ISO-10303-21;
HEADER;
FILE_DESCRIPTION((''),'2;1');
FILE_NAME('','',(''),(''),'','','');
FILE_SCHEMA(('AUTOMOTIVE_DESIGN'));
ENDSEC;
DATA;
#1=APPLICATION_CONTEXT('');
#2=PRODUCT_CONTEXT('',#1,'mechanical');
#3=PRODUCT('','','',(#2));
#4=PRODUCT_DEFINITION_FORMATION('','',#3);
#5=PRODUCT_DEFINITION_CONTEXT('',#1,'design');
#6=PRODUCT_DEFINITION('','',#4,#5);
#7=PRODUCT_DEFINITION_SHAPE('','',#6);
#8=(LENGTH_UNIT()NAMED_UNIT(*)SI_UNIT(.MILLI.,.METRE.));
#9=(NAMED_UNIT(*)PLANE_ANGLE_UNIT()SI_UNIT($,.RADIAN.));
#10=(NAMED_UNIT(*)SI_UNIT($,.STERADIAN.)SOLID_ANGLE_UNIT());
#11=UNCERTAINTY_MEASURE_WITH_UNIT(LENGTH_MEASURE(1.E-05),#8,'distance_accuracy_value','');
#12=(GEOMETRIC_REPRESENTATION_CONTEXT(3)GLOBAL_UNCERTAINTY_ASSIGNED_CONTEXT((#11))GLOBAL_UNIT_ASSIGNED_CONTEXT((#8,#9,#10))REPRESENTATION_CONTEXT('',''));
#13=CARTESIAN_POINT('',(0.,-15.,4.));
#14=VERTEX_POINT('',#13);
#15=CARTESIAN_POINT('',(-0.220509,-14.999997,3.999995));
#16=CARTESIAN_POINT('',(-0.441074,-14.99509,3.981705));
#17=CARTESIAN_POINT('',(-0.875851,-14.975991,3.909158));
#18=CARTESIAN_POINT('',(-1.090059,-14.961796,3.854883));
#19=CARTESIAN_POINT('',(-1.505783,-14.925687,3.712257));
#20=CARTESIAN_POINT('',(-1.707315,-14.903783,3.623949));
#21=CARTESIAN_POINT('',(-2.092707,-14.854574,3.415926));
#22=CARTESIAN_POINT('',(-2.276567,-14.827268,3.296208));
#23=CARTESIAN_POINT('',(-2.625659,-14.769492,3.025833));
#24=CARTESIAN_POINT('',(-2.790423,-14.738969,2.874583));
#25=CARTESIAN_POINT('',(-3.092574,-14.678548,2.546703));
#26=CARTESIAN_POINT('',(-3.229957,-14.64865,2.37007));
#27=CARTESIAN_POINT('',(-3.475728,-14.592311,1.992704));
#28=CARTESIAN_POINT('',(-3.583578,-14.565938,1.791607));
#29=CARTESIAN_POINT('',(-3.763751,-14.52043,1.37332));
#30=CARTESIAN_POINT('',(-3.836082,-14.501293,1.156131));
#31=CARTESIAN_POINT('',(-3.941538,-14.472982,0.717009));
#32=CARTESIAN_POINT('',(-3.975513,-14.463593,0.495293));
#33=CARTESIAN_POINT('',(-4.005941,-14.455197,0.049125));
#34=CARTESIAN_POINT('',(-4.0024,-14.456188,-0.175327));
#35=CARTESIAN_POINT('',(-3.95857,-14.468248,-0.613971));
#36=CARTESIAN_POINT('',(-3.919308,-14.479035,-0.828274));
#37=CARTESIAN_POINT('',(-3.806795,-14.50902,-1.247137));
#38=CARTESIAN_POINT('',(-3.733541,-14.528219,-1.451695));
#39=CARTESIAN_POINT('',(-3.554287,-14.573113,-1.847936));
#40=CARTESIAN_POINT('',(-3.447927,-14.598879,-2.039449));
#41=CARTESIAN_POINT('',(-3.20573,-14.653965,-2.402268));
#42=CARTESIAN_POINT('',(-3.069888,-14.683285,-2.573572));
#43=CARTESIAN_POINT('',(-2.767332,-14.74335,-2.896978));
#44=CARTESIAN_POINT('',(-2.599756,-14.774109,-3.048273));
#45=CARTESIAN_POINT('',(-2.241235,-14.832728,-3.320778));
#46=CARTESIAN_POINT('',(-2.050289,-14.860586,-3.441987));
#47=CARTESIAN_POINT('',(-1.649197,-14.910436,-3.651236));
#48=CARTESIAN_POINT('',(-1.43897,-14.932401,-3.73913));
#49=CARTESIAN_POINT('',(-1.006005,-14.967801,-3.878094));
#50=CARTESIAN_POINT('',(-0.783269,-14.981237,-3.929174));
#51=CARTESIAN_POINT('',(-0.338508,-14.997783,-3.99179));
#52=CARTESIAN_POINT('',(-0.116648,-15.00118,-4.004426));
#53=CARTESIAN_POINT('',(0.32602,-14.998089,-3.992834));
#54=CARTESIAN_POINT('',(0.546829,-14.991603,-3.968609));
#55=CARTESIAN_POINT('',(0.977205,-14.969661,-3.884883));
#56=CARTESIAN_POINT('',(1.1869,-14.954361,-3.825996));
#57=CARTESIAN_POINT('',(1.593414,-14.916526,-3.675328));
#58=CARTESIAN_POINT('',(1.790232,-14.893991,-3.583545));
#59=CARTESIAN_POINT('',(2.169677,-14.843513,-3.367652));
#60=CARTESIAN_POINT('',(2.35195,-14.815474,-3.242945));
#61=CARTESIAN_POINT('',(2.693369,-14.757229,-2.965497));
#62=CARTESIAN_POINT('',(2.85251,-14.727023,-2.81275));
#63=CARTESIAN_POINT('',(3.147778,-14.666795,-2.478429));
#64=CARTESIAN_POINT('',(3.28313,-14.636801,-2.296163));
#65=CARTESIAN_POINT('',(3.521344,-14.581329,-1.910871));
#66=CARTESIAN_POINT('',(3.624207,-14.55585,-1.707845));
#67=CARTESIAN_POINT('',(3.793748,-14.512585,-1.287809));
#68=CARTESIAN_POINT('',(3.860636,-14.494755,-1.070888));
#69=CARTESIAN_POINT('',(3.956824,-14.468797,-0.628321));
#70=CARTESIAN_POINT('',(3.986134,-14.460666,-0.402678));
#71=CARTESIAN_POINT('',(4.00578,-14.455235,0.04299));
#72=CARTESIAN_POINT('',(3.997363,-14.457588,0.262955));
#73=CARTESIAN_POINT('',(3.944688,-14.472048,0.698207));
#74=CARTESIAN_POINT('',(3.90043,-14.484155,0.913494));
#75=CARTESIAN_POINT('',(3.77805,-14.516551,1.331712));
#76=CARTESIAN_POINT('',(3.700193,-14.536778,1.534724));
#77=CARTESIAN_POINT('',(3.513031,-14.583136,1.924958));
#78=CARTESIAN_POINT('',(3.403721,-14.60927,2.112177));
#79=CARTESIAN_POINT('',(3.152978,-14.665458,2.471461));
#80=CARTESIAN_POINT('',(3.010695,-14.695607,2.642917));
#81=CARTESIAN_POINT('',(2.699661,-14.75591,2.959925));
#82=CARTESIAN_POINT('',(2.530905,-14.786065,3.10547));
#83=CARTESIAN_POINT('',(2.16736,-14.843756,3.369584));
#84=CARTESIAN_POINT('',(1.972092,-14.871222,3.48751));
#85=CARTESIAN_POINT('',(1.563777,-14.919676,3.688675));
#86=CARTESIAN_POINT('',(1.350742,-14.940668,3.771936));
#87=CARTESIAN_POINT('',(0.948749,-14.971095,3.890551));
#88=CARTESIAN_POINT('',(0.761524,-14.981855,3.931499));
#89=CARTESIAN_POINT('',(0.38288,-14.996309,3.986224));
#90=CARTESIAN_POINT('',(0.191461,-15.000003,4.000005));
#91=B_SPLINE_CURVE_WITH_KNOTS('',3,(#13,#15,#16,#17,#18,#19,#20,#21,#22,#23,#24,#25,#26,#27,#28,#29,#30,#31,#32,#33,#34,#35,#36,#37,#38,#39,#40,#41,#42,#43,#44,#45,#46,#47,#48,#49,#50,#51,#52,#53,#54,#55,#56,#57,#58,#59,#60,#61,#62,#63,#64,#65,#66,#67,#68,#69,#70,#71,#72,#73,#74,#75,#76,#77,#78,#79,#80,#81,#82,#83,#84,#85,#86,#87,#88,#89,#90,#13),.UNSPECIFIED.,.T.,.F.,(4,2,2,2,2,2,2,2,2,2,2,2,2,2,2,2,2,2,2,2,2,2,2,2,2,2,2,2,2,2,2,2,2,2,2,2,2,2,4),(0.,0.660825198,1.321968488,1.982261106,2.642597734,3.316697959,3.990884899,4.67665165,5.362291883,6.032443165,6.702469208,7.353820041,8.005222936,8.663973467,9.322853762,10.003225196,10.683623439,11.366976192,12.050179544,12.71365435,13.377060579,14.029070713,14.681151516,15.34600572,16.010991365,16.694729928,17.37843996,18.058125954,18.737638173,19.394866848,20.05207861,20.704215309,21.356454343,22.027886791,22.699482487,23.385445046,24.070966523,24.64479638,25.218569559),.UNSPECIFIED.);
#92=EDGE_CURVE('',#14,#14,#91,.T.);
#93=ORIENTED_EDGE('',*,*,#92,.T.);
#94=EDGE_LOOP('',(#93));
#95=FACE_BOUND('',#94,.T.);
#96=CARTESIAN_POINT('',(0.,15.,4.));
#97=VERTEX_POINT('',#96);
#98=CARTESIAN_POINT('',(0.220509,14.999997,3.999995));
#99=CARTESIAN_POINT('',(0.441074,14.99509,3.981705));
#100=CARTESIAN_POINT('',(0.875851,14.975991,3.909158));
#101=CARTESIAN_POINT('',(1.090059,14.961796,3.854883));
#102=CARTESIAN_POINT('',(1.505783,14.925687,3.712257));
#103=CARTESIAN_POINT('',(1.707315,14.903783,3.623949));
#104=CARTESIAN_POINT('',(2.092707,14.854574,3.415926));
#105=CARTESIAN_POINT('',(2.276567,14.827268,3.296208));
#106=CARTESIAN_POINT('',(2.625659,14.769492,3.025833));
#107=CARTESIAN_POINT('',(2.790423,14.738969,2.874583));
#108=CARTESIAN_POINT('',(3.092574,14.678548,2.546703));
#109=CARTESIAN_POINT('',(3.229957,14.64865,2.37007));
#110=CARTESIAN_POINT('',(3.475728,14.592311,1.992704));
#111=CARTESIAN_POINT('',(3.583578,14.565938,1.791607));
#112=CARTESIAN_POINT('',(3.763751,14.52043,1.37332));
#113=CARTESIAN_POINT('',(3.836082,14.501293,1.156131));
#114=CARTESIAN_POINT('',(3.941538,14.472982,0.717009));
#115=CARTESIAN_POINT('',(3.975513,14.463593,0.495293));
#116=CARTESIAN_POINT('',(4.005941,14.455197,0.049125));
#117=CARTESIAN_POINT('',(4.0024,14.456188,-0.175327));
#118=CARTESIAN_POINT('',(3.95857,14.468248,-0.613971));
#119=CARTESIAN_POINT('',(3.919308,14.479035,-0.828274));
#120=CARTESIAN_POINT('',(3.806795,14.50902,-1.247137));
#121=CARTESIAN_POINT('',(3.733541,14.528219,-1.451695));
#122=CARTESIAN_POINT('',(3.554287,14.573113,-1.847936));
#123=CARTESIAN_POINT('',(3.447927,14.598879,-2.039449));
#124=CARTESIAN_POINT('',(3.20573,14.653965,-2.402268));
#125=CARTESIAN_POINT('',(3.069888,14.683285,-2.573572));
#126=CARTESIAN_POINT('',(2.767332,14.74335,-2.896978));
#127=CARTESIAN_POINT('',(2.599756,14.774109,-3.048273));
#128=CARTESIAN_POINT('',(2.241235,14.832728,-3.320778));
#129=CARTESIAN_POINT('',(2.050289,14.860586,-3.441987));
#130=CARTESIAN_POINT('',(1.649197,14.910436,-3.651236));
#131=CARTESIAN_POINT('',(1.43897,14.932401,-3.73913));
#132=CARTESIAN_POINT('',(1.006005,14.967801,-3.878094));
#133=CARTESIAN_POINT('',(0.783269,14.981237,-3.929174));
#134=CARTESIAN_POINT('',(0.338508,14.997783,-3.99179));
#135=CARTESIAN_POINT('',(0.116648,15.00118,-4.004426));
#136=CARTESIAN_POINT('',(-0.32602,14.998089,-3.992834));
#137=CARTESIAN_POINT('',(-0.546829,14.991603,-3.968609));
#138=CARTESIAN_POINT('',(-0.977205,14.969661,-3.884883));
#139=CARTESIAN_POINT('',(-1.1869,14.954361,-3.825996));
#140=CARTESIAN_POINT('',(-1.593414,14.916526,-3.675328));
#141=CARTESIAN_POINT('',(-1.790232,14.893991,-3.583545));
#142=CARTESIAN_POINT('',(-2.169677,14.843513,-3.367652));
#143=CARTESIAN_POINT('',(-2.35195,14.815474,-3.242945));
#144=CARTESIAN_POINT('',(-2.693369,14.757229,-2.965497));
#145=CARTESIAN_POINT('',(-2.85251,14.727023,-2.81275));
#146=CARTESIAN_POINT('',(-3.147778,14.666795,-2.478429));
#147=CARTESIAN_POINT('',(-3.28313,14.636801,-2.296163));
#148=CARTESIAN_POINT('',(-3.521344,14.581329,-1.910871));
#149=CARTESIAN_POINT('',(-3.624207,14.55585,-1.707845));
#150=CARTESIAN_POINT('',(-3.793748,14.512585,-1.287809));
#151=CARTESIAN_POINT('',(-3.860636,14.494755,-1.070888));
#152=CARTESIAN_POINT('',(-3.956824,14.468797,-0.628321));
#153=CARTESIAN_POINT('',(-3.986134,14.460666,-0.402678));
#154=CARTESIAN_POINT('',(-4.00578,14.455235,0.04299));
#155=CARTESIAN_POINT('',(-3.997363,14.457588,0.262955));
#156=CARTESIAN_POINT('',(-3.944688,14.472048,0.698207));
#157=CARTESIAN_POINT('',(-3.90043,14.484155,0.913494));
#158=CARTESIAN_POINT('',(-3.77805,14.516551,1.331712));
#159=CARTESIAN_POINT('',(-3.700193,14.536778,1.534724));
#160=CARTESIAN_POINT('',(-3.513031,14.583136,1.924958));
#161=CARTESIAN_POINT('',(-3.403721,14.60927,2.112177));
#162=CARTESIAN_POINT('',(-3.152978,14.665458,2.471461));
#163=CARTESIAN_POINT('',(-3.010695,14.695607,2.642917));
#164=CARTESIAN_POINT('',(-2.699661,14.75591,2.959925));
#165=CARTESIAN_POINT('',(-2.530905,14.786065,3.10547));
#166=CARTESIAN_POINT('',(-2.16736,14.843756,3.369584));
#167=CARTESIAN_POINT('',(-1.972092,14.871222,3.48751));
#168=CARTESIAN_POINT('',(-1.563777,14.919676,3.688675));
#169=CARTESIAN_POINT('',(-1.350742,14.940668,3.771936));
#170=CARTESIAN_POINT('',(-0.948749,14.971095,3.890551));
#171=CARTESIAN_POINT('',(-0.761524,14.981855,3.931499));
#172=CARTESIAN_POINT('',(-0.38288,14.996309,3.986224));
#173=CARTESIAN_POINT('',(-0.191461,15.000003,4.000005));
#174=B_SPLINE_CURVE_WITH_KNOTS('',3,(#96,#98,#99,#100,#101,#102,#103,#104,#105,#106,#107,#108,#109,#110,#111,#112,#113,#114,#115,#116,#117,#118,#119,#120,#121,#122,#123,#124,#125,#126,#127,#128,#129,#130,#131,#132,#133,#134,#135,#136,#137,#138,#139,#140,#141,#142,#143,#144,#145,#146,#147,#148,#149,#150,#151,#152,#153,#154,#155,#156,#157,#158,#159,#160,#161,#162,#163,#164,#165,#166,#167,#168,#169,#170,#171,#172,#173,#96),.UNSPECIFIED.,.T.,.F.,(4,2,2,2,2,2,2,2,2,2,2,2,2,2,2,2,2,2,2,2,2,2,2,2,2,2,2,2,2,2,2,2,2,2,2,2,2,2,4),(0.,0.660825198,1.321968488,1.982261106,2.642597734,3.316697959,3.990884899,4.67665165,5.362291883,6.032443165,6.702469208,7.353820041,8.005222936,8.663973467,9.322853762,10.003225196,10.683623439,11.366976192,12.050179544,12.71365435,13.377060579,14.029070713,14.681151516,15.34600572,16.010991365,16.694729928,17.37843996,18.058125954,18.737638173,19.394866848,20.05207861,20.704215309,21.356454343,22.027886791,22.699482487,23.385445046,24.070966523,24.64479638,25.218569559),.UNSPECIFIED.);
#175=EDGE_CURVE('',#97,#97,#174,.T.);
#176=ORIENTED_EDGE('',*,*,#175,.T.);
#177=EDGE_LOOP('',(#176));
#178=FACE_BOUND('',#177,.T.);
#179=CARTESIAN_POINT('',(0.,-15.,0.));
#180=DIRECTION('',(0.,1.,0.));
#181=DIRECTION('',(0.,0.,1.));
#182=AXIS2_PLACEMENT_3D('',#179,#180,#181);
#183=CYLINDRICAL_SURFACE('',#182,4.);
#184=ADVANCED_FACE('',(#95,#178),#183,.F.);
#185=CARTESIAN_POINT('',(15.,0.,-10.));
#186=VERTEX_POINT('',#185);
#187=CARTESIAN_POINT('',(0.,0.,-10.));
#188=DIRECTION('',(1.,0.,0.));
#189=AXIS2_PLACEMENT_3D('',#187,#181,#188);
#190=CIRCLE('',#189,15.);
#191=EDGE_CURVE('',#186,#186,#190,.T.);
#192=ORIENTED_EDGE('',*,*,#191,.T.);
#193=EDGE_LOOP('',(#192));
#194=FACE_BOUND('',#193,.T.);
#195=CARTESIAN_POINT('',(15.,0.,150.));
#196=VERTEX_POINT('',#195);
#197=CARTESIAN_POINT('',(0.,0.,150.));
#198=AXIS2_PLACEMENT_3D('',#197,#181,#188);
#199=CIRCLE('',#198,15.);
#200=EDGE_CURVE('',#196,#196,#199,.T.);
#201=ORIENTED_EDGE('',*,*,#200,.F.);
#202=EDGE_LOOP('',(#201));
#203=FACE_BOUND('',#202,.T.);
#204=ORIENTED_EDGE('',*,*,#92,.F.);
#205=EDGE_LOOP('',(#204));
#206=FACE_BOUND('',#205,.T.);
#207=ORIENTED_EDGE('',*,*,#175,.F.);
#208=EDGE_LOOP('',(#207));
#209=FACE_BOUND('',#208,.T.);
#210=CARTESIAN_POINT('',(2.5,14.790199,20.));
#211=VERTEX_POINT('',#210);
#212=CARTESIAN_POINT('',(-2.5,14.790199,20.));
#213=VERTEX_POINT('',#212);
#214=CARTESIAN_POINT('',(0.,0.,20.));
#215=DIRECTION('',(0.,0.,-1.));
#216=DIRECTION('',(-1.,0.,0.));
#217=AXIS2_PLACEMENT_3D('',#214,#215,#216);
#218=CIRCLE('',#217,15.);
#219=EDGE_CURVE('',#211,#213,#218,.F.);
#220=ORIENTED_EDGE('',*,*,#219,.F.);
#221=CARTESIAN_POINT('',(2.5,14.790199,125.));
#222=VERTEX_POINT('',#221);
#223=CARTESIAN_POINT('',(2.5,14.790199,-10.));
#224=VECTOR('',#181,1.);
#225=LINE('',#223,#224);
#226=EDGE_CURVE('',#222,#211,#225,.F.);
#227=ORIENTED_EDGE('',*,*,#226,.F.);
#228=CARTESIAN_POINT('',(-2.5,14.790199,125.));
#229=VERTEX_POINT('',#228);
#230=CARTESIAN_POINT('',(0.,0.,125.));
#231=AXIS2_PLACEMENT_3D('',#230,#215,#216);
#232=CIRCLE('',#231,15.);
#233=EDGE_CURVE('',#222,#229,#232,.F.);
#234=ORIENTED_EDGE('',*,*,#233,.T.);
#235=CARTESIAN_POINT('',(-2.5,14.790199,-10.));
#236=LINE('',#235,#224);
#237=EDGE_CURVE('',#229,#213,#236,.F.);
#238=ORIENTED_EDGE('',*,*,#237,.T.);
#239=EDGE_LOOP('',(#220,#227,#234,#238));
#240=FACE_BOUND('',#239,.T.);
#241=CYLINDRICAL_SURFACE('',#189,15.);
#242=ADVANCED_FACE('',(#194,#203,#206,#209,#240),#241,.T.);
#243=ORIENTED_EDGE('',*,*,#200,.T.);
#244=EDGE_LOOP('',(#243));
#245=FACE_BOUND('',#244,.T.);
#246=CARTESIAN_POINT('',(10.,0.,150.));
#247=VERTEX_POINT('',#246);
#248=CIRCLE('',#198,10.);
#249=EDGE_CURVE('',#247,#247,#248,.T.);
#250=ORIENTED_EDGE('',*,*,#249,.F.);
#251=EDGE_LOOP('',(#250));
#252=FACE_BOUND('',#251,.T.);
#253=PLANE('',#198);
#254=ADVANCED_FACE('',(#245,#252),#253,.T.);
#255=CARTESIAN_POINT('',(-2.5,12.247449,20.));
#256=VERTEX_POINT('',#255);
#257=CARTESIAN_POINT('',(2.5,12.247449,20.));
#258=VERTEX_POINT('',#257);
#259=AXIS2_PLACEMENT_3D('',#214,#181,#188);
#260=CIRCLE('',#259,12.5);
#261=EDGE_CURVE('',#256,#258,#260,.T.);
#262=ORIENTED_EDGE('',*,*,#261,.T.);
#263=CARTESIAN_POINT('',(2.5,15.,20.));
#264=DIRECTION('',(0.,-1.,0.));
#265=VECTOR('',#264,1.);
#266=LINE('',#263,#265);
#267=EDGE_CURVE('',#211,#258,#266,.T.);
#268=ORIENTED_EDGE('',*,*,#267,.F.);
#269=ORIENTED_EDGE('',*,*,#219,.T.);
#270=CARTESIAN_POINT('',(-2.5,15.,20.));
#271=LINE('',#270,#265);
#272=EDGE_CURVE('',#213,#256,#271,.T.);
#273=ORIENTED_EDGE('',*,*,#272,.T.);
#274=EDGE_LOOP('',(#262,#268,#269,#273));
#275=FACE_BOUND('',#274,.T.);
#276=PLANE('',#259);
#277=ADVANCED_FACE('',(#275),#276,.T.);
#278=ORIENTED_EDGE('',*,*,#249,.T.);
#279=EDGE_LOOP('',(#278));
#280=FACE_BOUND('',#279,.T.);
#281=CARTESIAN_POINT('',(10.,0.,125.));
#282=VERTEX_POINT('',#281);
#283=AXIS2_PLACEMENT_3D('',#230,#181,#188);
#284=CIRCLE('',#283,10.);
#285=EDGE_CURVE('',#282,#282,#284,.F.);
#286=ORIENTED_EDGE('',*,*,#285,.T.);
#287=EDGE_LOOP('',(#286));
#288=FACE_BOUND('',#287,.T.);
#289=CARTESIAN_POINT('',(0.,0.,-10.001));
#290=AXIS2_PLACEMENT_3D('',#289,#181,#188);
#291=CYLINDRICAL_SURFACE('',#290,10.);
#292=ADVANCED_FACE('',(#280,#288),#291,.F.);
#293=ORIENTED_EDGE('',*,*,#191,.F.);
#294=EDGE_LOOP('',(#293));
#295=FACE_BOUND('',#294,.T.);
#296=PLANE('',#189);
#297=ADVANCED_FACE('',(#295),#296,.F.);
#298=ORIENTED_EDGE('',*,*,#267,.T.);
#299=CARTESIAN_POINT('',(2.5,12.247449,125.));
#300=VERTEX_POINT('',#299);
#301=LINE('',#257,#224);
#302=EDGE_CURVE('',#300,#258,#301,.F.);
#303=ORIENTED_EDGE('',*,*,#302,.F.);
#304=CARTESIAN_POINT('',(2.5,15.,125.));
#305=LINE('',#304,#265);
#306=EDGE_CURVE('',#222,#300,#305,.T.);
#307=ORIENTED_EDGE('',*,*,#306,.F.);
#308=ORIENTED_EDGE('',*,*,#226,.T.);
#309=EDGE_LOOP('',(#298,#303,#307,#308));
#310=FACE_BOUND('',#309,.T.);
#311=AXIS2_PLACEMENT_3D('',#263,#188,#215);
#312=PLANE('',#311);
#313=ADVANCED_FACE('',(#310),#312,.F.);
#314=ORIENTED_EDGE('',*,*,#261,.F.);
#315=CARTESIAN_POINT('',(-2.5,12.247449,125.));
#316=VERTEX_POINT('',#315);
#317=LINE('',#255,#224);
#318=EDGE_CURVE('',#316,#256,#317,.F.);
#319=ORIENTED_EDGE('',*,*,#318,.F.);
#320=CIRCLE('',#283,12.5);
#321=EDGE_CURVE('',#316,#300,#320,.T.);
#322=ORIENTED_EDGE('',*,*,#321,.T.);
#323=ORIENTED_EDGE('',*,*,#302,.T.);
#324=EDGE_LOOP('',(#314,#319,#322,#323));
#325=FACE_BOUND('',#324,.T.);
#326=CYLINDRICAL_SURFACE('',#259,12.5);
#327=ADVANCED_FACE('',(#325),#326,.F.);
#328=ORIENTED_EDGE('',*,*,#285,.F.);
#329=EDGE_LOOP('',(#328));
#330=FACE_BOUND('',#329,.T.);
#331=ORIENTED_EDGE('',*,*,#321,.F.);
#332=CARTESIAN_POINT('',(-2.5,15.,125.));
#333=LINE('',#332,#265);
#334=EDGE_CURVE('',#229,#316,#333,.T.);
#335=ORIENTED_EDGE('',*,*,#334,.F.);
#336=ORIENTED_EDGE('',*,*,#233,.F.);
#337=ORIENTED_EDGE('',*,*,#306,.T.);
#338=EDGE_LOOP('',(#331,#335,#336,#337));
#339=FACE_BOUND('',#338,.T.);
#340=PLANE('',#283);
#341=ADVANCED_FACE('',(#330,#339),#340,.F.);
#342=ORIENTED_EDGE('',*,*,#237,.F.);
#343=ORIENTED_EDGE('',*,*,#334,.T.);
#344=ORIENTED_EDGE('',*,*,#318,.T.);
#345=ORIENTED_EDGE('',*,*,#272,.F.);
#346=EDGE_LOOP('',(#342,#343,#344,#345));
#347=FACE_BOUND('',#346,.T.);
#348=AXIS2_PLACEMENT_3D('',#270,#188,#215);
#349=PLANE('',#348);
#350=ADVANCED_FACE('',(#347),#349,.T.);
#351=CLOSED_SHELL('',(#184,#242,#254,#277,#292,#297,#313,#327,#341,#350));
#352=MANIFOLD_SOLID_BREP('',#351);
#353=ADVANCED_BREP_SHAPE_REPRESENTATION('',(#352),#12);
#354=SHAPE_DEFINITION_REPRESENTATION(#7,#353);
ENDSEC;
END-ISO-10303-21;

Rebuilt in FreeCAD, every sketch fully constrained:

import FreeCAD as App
import Part
import Sketcher

V = App.Vector
Q = App.Units.Quantity

doc = App.newDocument("Part")
body = doc.addObject("PartDesign::Body", "Body")

sketch1 = body.newObject("Sketcher::SketchObject", "Sketch")
sketch1.AttachmentSupport = (doc.getObject("XY_Plane"), [""])
sketch1.MapMode = "FlatFace"
sketch1.addGeometry(Part.Circle(V(0, 0, 0), V(0, 0, 1), 15), False)
sketch1.addConstraint([
    Sketcher.Constraint("Coincident", 0, 3, -1, 1),
    Sketcher.Constraint("Diameter", 0, Q("30 mm")),
])
pad1 = body.newObject("PartDesign::Pad", "Pad")
pad1.Profile = sketch1
pad1.Type = "TwoLengths"
pad1.Length = 150
pad1.Length2 = 10

sketch2 = body.newObject("Sketcher::SketchObject", "Sketch001")
sketch2.AttachmentSupport = (doc.getObject("XY_Plane"), [""])
sketch2.MapMode = "FlatFace"
sketch2.AttachmentOffset = App.Placement(V(0, 0, 125), App.Rotation())
sketch2.addGeometry(Part.Circle(V(0, 0, 0), V(0, 0, 1), 12), False)
sketch2.addConstraint([
    Sketcher.Constraint("Coincident", 0, 3, -1, 1),
    Sketcher.Constraint("Diameter", 0, Q("25 mm")),
])
pocket1 = body.newObject("PartDesign::Pocket", "Pocket")
pocket1.Profile = sketch2
pocket1.Length = 105

sketch3 = body.newObject("Sketcher::SketchObject", "Sketch002")
sketch3.AttachmentSupport = (doc.getObject("XY_Plane"), [""])
sketch3.MapMode = "FlatFace"
sketch3.AttachmentOffset = App.Placement(V(0, 0, 150), App.Rotation())
sketch3.addGeometry(Part.Circle(V(0, 0, 0), V(0, 0, 1), 10), False)
sketch3.addConstraint([
    Sketcher.Constraint("Coincident", 0, 3, -1, 1),
    Sketcher.Constraint("Diameter", 0, Q("20 mm")),
])
pocket2 = body.newObject("PartDesign::Pocket", "Pocket001")
pocket2.Profile = sketch3
pocket2.Type = "UpToFirst"

sketch4 = body.newObject("Sketcher::SketchObject", "Sketch003")
sketch4.AttachmentSupport = (doc.getObject("XZ_Plane"), [""])
sketch4.MapMode = "FlatFace"
sketch4.addGeometry(Part.Circle(V(0, 0, 0), V(0, 0, 1), 4), False)
sketch4.addConstraint([
    Sketcher.Constraint("Coincident", 0, 3, -1, 1),
    Sketcher.Constraint("Diameter", 0, Q("8 mm")),
])
pocket3 = body.newObject("PartDesign::Pocket", "Pocket002")
pocket3.Profile = sketch4
pocket3.Type = "ThroughAll"
pocket3.Midplane = True

sketch5 = body.newObject("Sketcher::SketchObject", "Sketch004")
sketch5.AttachmentSupport = (doc.getObject("XZ_Plane"), [""])
sketch5.MapMode = "FlatFace"
sketch5.addGeometry([
    Part.LineSegment(V(-2, 20, 0), V(-2, 125, 0)),
    Part.LineSegment(V(-2, 125, 0), V(2, 125, 0)),
    Part.LineSegment(V(2, 125, 0), V(2, 20, 0)),
    Part.LineSegment(V(2, 20, 0), V(-2, 20, 0)),
], False)
sketch5.addConstraint([
    Sketcher.Constraint("Coincident", 0, 2, 1, 1),
    Sketcher.Constraint("Coincident", 1, 2, 2, 1),
    Sketcher.Constraint("Coincident", 2, 2, 3, 1),
    Sketcher.Constraint("Coincident", 3, 2, 0, 1),
    Sketcher.Constraint("Vertical", 0),
    Sketcher.Constraint("Horizontal", 1),
    Sketcher.Constraint("Vertical", 2),
    Sketcher.Constraint("Horizontal", 3),
    Sketcher.Constraint("DistanceX", 1, 1, 1, 2, Q("5 mm")),
    Sketcher.Constraint("DistanceY", 0, 1, 0, 2, Q("105 mm")),
    Sketcher.Constraint("DistanceY", -1, 1, 0, 2, Q("125 mm")),
    Sketcher.Constraint("DistanceX", 0, 2, -1, 1, Q("2.5 mm")),
])
pocket4 = body.newObject("PartDesign::Pocket", "Pocket003")
pocket4.Profile = sketch5
pocket4.Type = "ThroughAll"

doc.recompute()
